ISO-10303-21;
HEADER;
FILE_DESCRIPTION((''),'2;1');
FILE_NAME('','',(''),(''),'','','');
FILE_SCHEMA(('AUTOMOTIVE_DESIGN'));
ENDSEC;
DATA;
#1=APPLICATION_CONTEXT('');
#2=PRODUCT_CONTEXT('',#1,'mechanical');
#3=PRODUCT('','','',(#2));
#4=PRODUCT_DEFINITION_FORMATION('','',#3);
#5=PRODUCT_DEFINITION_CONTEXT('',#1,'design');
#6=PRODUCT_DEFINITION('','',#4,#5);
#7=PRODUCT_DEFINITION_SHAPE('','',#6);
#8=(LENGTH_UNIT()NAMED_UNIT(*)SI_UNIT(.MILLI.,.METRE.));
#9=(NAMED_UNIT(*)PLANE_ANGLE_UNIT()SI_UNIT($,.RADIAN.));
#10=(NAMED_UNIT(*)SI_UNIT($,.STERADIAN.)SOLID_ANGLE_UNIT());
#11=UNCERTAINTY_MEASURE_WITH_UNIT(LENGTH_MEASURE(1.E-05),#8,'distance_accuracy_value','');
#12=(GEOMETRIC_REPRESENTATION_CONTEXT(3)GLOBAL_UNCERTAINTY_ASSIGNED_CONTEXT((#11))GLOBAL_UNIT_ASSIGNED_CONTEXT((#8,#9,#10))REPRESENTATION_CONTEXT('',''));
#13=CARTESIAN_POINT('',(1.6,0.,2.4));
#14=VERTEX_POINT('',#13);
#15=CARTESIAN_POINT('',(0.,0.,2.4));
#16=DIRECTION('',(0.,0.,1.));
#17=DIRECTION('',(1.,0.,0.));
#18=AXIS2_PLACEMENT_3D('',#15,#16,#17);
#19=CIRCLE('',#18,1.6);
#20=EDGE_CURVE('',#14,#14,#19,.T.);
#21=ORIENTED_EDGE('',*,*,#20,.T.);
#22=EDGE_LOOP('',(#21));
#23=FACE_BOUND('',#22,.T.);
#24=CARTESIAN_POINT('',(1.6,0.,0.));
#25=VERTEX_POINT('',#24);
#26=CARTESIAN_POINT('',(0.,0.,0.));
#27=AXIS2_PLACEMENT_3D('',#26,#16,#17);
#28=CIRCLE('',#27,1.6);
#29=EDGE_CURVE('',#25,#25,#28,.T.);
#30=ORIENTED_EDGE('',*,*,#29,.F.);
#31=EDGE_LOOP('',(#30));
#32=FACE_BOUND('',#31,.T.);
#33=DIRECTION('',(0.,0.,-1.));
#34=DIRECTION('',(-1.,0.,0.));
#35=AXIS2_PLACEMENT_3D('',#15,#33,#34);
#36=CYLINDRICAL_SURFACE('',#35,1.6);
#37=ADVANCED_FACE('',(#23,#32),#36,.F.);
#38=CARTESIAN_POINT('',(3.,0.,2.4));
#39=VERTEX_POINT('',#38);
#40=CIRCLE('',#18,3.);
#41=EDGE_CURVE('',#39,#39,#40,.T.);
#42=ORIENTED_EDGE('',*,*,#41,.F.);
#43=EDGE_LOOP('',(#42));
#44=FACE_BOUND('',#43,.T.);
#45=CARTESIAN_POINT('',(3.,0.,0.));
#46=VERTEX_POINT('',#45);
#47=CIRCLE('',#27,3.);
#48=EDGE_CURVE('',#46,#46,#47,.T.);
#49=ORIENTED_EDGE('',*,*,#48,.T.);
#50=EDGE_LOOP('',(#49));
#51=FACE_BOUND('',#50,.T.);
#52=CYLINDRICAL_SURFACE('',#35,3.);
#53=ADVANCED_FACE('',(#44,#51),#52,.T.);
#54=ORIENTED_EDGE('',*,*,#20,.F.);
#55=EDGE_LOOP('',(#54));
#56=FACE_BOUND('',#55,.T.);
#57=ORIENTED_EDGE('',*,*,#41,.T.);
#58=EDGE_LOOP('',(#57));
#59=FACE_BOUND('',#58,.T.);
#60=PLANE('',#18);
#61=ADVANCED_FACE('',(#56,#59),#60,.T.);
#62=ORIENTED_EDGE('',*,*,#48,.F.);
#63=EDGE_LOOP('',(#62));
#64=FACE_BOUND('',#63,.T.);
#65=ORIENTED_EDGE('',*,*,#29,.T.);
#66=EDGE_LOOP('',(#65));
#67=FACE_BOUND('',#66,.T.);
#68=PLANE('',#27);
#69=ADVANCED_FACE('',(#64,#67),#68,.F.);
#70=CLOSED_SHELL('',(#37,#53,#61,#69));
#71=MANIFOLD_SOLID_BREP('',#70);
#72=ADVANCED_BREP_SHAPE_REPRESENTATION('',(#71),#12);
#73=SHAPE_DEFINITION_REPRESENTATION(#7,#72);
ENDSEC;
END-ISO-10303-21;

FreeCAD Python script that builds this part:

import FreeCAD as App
import Part
import Sketcher
from FreeCAD import Vector
Q = App.Units.Quantity

doc = App.newDocument("Part")
body = doc.addObject("PartDesign::Body", "Body")

# Sketch on XY plane
sketch1 = doc.addObject("Sketcher::SketchObject", "Sketch")
body.addObject(sketch1)
sketch1.AttachmentSupport = (doc.XY_Plane, [""])
sketch1.MapMode = "FlatFace"
sketch1.addGeometry(Part.Circle(Vector(0, 0, 0), Vector(0, 0, 1), 3), False)
sketch1.addGeometry(Part.Circle(Vector(0, 0, 0), Vector(0, 0, 1), 1.6), False)
sketch1.addConstraint(Sketcher.Constraint("Coincident", 0, 3, -1, 1))
sketch1.addConstraint(Sketcher.Constraint("Coincident", 1, 3, -1, 1))
sketch1.addConstraint(Sketcher.Constraint("Diameter", 0, Q("6 mm")))
sketch1.addConstraint(Sketcher.Constraint("Diameter", 1, Q("3.2 mm")))
pad1 = doc.addObject("PartDesign::Pad", "Pad")
body.addObject(pad1)
pad1.Profile = sketch1
pad1.Length = 2.4

doc.recompute()
